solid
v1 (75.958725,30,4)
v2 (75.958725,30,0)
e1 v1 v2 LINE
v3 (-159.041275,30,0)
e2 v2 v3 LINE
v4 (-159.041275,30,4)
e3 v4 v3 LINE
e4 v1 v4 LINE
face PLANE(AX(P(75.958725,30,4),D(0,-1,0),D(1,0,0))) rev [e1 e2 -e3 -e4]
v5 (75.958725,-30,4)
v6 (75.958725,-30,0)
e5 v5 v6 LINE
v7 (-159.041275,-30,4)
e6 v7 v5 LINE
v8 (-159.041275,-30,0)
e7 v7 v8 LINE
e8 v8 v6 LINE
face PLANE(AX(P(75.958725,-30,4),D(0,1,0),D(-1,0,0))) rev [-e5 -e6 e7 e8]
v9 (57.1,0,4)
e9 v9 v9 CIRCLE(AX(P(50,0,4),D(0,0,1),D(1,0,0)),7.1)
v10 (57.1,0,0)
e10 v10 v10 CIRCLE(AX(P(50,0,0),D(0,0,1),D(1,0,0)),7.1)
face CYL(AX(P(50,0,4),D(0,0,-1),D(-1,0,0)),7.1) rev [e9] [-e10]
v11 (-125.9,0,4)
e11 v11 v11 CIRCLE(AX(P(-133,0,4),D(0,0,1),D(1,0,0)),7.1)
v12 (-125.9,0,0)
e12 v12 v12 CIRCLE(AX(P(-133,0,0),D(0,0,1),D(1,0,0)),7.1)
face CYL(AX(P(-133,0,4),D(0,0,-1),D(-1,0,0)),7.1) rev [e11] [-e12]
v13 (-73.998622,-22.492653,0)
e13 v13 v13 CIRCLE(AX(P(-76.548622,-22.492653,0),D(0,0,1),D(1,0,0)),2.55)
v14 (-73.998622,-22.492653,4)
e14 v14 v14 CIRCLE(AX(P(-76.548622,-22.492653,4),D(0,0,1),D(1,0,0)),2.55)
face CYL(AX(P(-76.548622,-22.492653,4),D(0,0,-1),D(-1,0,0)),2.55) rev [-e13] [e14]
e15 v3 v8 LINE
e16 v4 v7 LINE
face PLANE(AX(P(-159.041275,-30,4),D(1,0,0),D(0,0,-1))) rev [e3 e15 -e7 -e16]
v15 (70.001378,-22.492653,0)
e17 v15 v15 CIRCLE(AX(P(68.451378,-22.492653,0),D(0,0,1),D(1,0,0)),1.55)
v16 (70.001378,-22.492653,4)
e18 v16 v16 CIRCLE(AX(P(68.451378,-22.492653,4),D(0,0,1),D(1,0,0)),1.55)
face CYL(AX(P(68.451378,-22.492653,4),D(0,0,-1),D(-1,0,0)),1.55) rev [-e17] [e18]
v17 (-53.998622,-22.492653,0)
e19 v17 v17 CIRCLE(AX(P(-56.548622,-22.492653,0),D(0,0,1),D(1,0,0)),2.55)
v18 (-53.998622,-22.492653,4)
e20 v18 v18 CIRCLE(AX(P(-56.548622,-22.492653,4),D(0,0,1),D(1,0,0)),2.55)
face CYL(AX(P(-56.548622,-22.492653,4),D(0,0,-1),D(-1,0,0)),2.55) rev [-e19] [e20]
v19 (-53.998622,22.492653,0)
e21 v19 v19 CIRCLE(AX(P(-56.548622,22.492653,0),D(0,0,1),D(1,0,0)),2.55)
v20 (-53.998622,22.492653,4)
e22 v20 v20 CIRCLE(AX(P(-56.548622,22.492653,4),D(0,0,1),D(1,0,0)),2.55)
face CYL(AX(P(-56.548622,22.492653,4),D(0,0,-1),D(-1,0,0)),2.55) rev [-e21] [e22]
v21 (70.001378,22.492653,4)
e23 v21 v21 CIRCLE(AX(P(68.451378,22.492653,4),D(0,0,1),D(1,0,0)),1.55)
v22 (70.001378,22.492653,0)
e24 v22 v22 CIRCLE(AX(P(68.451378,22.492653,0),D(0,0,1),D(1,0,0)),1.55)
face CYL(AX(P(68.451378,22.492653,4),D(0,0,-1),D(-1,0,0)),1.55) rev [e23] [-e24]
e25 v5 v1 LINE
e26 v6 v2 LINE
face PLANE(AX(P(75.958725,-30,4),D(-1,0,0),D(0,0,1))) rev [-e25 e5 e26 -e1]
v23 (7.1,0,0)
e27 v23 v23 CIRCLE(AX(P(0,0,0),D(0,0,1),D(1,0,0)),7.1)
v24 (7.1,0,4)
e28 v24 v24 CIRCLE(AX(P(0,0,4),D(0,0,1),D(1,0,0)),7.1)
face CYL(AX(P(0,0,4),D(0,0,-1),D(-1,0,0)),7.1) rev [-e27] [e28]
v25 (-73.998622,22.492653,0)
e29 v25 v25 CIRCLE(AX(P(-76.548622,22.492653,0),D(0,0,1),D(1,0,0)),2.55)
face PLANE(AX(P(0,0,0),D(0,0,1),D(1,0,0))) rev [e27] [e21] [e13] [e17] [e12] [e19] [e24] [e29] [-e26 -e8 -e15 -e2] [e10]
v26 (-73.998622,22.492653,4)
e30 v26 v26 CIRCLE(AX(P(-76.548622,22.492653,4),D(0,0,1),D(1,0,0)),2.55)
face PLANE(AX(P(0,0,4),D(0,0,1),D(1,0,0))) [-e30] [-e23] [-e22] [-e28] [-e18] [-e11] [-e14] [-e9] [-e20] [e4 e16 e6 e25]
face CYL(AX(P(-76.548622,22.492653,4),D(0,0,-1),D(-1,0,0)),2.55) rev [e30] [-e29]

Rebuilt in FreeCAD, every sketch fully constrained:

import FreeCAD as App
import Part
import Sketcher
from FreeCAD import Vector


def add_polygon(sketch, points):
    """Adds a closed chain of lines whose ends are joined by coincident constraints."""
    first, n = sketch.GeometryCount, len(points)
    for a, b in zip(points, points[1:] + points[:1]):
        sketch.addGeometry(Part.LineSegment(App.Vector(*a, 0), App.Vector(*b, 0)), False)
    for i in range(n):
        sketch.addConstraint(Sketcher.Constraint("Coincident", first + i, 2, first + (i + 1) % n, 1))

doc = App.newDocument("Part")
body = doc.addObject("PartDesign::Body", "Body")

sketch1 = body.newObject("Sketcher::SketchObject", "Sketch")
sketch1.AttachmentSupport = (doc.getObject("XY_Plane"), [""])
sketch1.MapMode = "FlatFace"
add_polygon(sketch1, [(-159, 30), (-159, -30), (76, -30), (76, 30)])
sketch1.addGeometry(Part.Circle(Vector(-76.5, -22.5, 0), Vector(0, 0, 1), 2.5), False)
sketch1.addGeometry(Part.Circle(Vector(-56.5, -22.5, 0), Vector(0, 0, 1), 2.5), False)
sketch1.addGeometry(Part.Circle(Vector(68.5, -22.5, 0), Vector(0, 0, 1), 1.6), False)
sketch1.addGeometry(Part.Circle(Vector(-133, 0, 0), Vector(0, 0, 1), 7.1), False)
sketch1.addGeometry(Part.Circle(Vector(-76.5, 22.5, 0), Vector(0, 0, 1), 2.5), False)
sketch1.addGeometry(Part.Circle(Vector(-56.5, 22.5, 0), Vector(0, 0, 1), 2.5), False)
sketch1.addGeometry(Part.Circle(Vector(0, 0, 0), Vector(0, 0, 1), 7.1), False)
sketch1.addGeometry(Part.Circle(Vector(50, 0, 0), Vector(0, 0, 1), 7.1), False)
sketch1.addGeometry(Part.Circle(Vector(68.5, 22.5, 0), Vector(0, 0, 1), 1.6), False)
sketch1.addConstraint([
    Sketcher.Constraint("Vertical", 0),
    Sketcher.Constraint("Horizontal", 1),
    Sketcher.Constraint("Vertical", 2),
    Sketcher.Constraint("Horizontal", 3),
    Sketcher.Constraint("Coincident", 10, 3, -1, 1),
    Sketcher.Constraint("Equal", 4, 5),
    Sketcher.Constraint("Equal", 5, 8),
    Sketcher.Constraint("Equal", 8, 9),
    Sketcher.Constraint("Equal", 7, 10),
    Sketcher.Constraint("Equal", 10, 11),
    Sketcher.Constraint("Equal", 6, 12),
    Sketcher.Constraint("Symmetric", 4, 3, 8, 3, -1),
    Sketcher.Constraint("Symmetric", 5, 3, 9, 3, -1),
    Sketcher.Constraint("Symmetric", 6, 3, 12, 3, -1),
    Sketcher.Constraint("PointOnObject", 7, 3, -1),
    Sketcher.Constraint("PointOnObject", 11, 3, -1),
    Sketcher.Constraint("Horizontal", 4, 3, 5, 3),
    Sketcher.Constraint("Horizontal", 5, 3, 6, 3),
    Sketcher.Constraint("Diameter", 4, 5.1),
    Sketcher.Constraint("Diameter", 6, 3.1),
    Sketcher.Constraint("Diameter", 7, 14.2),
    Sketcher.Constraint("DistanceX", 1, 1, 1, 2, 235.0),
    Sketcher.Constraint("DistanceY", 0, 2, 0, 1, 60.0),
    Sketcher.Constraint("DistanceX", 7, 3, -1, 1, 133.0),
    Sketcher.Constraint("DistanceX", -1, 1, 11, 3, 50.0),
    Sketcher.Constraint("DistanceY", 0, 2, -1, 1, 30.0),
    Sketcher.Constraint("DistanceX", 4, 3, 5, 3, 20.0),
    Sketcher.Constraint("DistanceX", 5, 3, 6, 3, 125.0),
    Sketcher.Constraint("DistanceX", 4, 3, -1, 1, 76.548622),
    Sketcher.Constraint("DistanceY", 4, 3, -1, 1, 22.492653),
    Sketcher.Constraint("DistanceX", 0, 2, -1, 1, 159.041275),
])
pad1 = body.newObject("PartDesign::Pad", "Pad")
pad1.Profile = sketch1
pad1.Length = 4

doc.recompute()
